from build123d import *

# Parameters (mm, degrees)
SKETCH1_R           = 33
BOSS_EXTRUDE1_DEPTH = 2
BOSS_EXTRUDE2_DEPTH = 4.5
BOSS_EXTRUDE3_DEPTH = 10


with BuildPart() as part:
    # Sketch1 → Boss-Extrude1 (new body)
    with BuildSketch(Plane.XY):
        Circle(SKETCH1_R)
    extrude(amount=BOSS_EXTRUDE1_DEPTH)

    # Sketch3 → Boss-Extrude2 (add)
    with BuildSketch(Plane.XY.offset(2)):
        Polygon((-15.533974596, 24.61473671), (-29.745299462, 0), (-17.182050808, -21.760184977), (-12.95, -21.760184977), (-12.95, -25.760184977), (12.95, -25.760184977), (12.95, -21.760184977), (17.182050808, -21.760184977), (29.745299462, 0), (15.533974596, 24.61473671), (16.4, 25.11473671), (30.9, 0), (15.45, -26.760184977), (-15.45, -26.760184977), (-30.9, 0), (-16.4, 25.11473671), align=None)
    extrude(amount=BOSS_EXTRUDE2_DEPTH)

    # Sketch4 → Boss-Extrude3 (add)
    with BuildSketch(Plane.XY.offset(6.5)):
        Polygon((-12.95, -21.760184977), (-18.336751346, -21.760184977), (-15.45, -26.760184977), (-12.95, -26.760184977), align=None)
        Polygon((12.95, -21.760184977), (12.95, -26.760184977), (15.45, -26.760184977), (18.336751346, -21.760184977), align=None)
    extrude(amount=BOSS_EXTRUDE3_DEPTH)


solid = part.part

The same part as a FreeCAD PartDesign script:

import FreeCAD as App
import Part
import Sketcher
Q = App.Units.Quantity

doc = App.newDocument("Part")
body = doc.addObject("PartDesign::Body", "Body")

sketch1 = body.newObject("Sketcher::SketchObject", "Sketch")
sketch1.AttachmentSupport = (doc.getObject("XY_Plane"), [""])
sketch1.MapMode = "FlatFace"
sketch1.addGeometry(Part.Circle(App.Vector(0, 0, 0), App.Vector(0, 0, 1), 33), False)
sketch1.addConstraint([
    Sketcher.Constraint("Coincident", 0, 3, -1, 1),
    Sketcher.Constraint("Diameter", 0, 66.0),
])
pad1 = body.newObject("PartDesign::Pad", "Pad")
pad1.Profile = sketch1
pad1.Length = 2

sketch2 = body.newObject("Sketcher::SketchObject", "Sketch001")
sketch2.AttachmentSupport = (doc.getObject("XY_Plane"), [""])
sketch2.MapMode = "FlatFace"
sketch2.AttachmentOffset = App.Placement(App.Vector(0, 0, 2), App.Rotation())
sketch2.addGeometry([
    Part.LineSegment(App.Vector(-29.7, 0, 0), App.Vector(-15.5, 24.6, 0)),
    Part.LineSegment(App.Vector(-15.5, 24.6, 0), App.Vector(-16.4, 25.1, 0)),
    Part.LineSegment(App.Vector(-16.4, 25.1, 0), App.Vector(-30.9, 0, 0)),
    Part.LineSegment(App.Vector(-30.9, 0, 0), App.Vector(-15.4, -26.8, 0)),
    Part.LineSegment(App.Vector(-15.4, -26.8, 0), App.Vector(15.4, -26.8, 0)),
    Part.LineSegment(App.Vector(15.4, -26.8, 0), App.Vector(30.9, 0, 0)),
    Part.LineSegment(App.Vector(30.9, 0, 0), App.Vector(16.4, 25.1, 0)),
    Part.LineSegment(App.Vector(16.4, 25.1, 0), App.Vector(15.5, 24.6, 0)),
    Part.LineSegment(App.Vector(15.5, 24.6, 0), App.Vector(29.7, 0, 0)),
    Part.LineSegment(App.Vector(29.7, 0, 0), App.Vector(17.2, -21.8, 0)),
    Part.LineSegment(App.Vector(17.2, -21.8, 0), App.Vector(12.9, -21.8, 0)),
    Part.LineSegment(App.Vector(12.9, -21.8, 0), App.Vector(12.9, -25.8, 0)),
    Part.LineSegment(App.Vector(12.9, -25.8, 0), App.Vector(-12.9, -25.8, 0)),
    Part.LineSegment(App.Vector(-12.9, -25.8, 0), App.Vector(-12.9, -21.8, 0)),
    Part.LineSegment(App.Vector(-12.9, -21.8, 0), App.Vector(-17.2, -21.8, 0)),
    Part.LineSegment(App.Vector(-17.2, -21.8, 0), App.Vector(-29.7, 0, 0)),
], False)
sketch2.addConstraint([
    Sketcher.Constraint("Coincident", 0, 2, 1, 1),
    Sketcher.Constraint("Coincident", 1, 2, 2, 1),
    Sketcher.Constraint("Coincident", 2, 2, 3, 1),
    Sketcher.Constraint("Coincident", 3, 2, 4, 1),
    Sketcher.Constraint("Coincident", 4, 2, 5, 1),
    Sketcher.Constraint("Coincident", 5, 2, 6, 1),
    Sketcher.Constraint("Coincident", 6, 2, 7, 1),
    Sketcher.Constraint("Coincident", 7, 2, 8, 1),
    Sketcher.Constraint("Coincident", 8, 2, 9, 1),
    Sketcher.Constraint("Coincident", 9, 2, 10, 1),
    Sketcher.Constraint("Coincident", 10, 2, 11, 1),
    Sketcher.Constraint("Coincident", 11, 2, 12, 1),
    Sketcher.Constraint("Coincident", 12, 2, 13, 1),
    Sketcher.Constraint("Coincident", 13, 2, 14, 1),
    Sketcher.Constraint("Coincident", 14, 2, 15, 1),
    Sketcher.Constraint("Coincident", 15, 2, 0, 1),
    Sketcher.Constraint("Horizontal", 4),
    Sketcher.Constraint("Horizontal", 10),
    Sketcher.Constraint("Vertical", 11),
    Sketcher.Constraint("Horizontal", 12),
    Sketcher.Constraint("Vertical", 13),
    Sketcher.Constraint("Horizontal", 14),
    Sketcher.Constraint("Symmetric", 2, 2, 5, 2, -1, 1),
    Sketcher.Constraint("Symmetric", 8, 2, 15, 2, -1, 1),
    Sketcher.Constraint("Symmetric", 1, 2, 6, 2, -2),
    Sketcher.Constraint("Symmetric", 0, 2, 7, 2, -2),
    Sketcher.Constraint("Symmetric", 10, 2, 13, 2, -2),
    Sketcher.Constraint("PointOnObject", 2, 2, -1),
    Sketcher.Constraint("PointOnObject", 8, 2, -1),
    Sketcher.Constraint("Perpendicular", 0, 1),
    Sketcher.Constraint("Perpendicular", 1, 2),
    Sketcher.Constraint("Parallel", 2, 5),
    Sketcher.Constraint("Parallel", 3, 6),
    Sketcher.Constraint("Parallel", 5, 9),
    Sketcher.Constraint("Parallel", 8, 15),
    Sketcher.Constraint("DistanceY", 11, 2, 11, 1, 4.0),
    Sketcher.Constraint("Angle", 0, Q("60 deg")),
    Sketcher.Constraint("Distance", 1, 1.0),
    Sketcher.Constraint("Distance", 2, 29.0),
    Sketcher.Constraint("DistanceX", 4, 1, 4, 2, 30.9),
    Sketcher.Constraint("DistanceX", 12, 2, 12, 1, 25.9),
    Sketcher.Constraint("DistanceY", 4, 2, 9, 2, 5.0),
    Sketcher.Constraint("Distance", 3, 30.9),
])
pad2 = body.newObject("PartDesign::Pad", "Pad001")
pad2.Profile = sketch2
pad2.Length = 4.5

sketch3 = body.newObject("Sketcher::SketchObject", "Sketch002")
sketch3.AttachmentSupport = (doc.getObject("XY_Plane"), [""])
sketch3.MapMode = "FlatFace"
sketch3.AttachmentOffset = App.Placement(App.Vector(0, 0, 6.5), App.Rotation())
sketch3.addGeometry([
    Part.LineSegment(App.Vector(-12.9, -21.8, 0), App.Vector(-18.3, -21.8, 0)),
    Part.LineSegment(App.Vector(-18.3, -21.8, 0), App.Vector(-15.4, -26.8, 0)),
    Part.LineSegment(App.Vector(-15.4, -26.8, 0), App.Vector(-12.9, -26.8, 0)),
    Part.LineSegment(App.Vector(-12.9, -26.8, 0), App.Vector(-12.9, -21.8, 0)),
    Part.LineSegment(App.Vector(12.9, -21.8, 0), App.Vector(12.9, -26.8, 0)),
    Part.LineSegment(App.Vector(12.9, -26.8, 0), App.Vector(15.4, -26.8, 0)),
    Part.LineSegment(App.Vector(15.4, -26.8, 0), App.Vector(18.3, -21.8, 0)),
    Part.LineSegment(App.Vector(18.3, -21.8, 0), App.Vector(12.9, -21.8, 0)),
], False)
sketch3.addConstraint([
    Sketcher.Constraint("Coincident", 0, 2, 1, 1),
    Sketcher.Constraint("Coincident", 1, 2, 2, 1),
    Sketcher.Constraint("Coincident", 2, 2, 3, 1),
    Sketcher.Constraint("Coincident", 3, 2, 0, 1),
    Sketcher.Constraint("Coincident", 4, 2, 5, 1),
    Sketcher.Constraint("Coincident", 5, 2, 6, 1),
    Sketcher.Constraint("Coincident", 6, 2, 7, 1),
    Sketcher.Constraint("Coincident", 7, 2, 4, 1),
    Sketcher.Constraint("Horizontal", 0),
    Sketcher.Constraint("Horizontal", 2),
    Sketcher.Constraint("Vertical", 3),
    Sketcher.Constraint("Vertical", 4),
    Sketcher.Constraint("Horizontal", 5),
    Sketcher.Constraint("Horizontal", 7),
    Sketcher.Constraint("Symmetric", 2, 2, 4, 2, -2),
    Sketcher.Constraint("Symmetric", 0, 2, 6, 2, -2),
    Sketcher.Constraint("Equal", 2, 5),
    Sketcher.Constraint("DistanceY", 3, 1, 3, 2, 5.0),
    Sketcher.Constraint("Angle", 1, Q("-60 deg")),
    Sketcher.Constraint("DistanceX", 2, 1, 2, 2, 2.5),
    Sketcher.Constraint("DistanceX", 2, 2, 4, 2, 25.9),
    Sketcher.Constraint("DistanceY", 0, 2, -1, 1, 21.760185),
])
pad3 = body.newObject("PartDesign::Pad", "Pad002")
pad3.Profile = sketch3
pad3.Length = 10

doc.recompute()
